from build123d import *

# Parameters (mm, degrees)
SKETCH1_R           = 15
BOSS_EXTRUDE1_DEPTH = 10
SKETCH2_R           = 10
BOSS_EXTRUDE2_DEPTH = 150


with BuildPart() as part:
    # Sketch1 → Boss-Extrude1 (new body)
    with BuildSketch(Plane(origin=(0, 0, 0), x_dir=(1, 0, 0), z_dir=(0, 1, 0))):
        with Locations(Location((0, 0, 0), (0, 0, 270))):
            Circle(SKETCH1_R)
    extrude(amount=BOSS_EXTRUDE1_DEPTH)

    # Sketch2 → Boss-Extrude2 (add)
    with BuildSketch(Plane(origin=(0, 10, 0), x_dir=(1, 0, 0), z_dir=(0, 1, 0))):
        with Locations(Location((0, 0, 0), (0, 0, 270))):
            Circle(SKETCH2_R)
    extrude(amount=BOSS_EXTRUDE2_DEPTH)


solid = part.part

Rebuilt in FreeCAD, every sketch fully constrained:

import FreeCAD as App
import Part
import Sketcher
from FreeCAD import Vector

doc = App.newDocument("Part")
body = doc.addObject("PartDesign::Body", "Body")

sketch1 = body.newObject("Sketcher::SketchObject", "Sketch")
sketch1.AttachmentSupport = (doc.getObject("XZ_Plane"), [""])
sketch1.MapMode = "FlatFace"
sketch1.addGeometry(Part.Circle(Vector(0, 0, 0), Vector(0, 0, 1), 15), False)
sketch1.addConstraint([
    Sketcher.Constraint("Coincident", 0, 3, -1, 1),
    Sketcher.Constraint("Diameter", 0, 30.0),
])
pad1 = body.newObject("PartDesign::Pad", "Pad")
pad1.Profile = sketch1
pad1.Length = 10
pad1.Reversed = True

sketch2 = body.newObject("Sketcher::SketchObject", "Sketch001")
sketch2.AttachmentSupport = (doc.getObject("XZ_Plane"), [""])
sketch2.MapMode = "FlatFace"
sketch2.AttachmentOffset = App.Placement(Vector(0, 0, -10), App.Rotation())
sketch2.addGeometry(Part.Circle(Vector(0, 0, 0), Vector(0, 0, 1), 10), False)
sketch2.addConstraint([
    Sketcher.Constraint("Coincident", 0, 3, -1, 1),
    Sketcher.Constraint("Diameter", 0, 20.0),
])
pad2 = body.newObject("PartDesign::Pad", "Pad001")
pad2.Profile = sketch2
pad2.Length = 150
pad2.Reversed = True

doc.recompute()
